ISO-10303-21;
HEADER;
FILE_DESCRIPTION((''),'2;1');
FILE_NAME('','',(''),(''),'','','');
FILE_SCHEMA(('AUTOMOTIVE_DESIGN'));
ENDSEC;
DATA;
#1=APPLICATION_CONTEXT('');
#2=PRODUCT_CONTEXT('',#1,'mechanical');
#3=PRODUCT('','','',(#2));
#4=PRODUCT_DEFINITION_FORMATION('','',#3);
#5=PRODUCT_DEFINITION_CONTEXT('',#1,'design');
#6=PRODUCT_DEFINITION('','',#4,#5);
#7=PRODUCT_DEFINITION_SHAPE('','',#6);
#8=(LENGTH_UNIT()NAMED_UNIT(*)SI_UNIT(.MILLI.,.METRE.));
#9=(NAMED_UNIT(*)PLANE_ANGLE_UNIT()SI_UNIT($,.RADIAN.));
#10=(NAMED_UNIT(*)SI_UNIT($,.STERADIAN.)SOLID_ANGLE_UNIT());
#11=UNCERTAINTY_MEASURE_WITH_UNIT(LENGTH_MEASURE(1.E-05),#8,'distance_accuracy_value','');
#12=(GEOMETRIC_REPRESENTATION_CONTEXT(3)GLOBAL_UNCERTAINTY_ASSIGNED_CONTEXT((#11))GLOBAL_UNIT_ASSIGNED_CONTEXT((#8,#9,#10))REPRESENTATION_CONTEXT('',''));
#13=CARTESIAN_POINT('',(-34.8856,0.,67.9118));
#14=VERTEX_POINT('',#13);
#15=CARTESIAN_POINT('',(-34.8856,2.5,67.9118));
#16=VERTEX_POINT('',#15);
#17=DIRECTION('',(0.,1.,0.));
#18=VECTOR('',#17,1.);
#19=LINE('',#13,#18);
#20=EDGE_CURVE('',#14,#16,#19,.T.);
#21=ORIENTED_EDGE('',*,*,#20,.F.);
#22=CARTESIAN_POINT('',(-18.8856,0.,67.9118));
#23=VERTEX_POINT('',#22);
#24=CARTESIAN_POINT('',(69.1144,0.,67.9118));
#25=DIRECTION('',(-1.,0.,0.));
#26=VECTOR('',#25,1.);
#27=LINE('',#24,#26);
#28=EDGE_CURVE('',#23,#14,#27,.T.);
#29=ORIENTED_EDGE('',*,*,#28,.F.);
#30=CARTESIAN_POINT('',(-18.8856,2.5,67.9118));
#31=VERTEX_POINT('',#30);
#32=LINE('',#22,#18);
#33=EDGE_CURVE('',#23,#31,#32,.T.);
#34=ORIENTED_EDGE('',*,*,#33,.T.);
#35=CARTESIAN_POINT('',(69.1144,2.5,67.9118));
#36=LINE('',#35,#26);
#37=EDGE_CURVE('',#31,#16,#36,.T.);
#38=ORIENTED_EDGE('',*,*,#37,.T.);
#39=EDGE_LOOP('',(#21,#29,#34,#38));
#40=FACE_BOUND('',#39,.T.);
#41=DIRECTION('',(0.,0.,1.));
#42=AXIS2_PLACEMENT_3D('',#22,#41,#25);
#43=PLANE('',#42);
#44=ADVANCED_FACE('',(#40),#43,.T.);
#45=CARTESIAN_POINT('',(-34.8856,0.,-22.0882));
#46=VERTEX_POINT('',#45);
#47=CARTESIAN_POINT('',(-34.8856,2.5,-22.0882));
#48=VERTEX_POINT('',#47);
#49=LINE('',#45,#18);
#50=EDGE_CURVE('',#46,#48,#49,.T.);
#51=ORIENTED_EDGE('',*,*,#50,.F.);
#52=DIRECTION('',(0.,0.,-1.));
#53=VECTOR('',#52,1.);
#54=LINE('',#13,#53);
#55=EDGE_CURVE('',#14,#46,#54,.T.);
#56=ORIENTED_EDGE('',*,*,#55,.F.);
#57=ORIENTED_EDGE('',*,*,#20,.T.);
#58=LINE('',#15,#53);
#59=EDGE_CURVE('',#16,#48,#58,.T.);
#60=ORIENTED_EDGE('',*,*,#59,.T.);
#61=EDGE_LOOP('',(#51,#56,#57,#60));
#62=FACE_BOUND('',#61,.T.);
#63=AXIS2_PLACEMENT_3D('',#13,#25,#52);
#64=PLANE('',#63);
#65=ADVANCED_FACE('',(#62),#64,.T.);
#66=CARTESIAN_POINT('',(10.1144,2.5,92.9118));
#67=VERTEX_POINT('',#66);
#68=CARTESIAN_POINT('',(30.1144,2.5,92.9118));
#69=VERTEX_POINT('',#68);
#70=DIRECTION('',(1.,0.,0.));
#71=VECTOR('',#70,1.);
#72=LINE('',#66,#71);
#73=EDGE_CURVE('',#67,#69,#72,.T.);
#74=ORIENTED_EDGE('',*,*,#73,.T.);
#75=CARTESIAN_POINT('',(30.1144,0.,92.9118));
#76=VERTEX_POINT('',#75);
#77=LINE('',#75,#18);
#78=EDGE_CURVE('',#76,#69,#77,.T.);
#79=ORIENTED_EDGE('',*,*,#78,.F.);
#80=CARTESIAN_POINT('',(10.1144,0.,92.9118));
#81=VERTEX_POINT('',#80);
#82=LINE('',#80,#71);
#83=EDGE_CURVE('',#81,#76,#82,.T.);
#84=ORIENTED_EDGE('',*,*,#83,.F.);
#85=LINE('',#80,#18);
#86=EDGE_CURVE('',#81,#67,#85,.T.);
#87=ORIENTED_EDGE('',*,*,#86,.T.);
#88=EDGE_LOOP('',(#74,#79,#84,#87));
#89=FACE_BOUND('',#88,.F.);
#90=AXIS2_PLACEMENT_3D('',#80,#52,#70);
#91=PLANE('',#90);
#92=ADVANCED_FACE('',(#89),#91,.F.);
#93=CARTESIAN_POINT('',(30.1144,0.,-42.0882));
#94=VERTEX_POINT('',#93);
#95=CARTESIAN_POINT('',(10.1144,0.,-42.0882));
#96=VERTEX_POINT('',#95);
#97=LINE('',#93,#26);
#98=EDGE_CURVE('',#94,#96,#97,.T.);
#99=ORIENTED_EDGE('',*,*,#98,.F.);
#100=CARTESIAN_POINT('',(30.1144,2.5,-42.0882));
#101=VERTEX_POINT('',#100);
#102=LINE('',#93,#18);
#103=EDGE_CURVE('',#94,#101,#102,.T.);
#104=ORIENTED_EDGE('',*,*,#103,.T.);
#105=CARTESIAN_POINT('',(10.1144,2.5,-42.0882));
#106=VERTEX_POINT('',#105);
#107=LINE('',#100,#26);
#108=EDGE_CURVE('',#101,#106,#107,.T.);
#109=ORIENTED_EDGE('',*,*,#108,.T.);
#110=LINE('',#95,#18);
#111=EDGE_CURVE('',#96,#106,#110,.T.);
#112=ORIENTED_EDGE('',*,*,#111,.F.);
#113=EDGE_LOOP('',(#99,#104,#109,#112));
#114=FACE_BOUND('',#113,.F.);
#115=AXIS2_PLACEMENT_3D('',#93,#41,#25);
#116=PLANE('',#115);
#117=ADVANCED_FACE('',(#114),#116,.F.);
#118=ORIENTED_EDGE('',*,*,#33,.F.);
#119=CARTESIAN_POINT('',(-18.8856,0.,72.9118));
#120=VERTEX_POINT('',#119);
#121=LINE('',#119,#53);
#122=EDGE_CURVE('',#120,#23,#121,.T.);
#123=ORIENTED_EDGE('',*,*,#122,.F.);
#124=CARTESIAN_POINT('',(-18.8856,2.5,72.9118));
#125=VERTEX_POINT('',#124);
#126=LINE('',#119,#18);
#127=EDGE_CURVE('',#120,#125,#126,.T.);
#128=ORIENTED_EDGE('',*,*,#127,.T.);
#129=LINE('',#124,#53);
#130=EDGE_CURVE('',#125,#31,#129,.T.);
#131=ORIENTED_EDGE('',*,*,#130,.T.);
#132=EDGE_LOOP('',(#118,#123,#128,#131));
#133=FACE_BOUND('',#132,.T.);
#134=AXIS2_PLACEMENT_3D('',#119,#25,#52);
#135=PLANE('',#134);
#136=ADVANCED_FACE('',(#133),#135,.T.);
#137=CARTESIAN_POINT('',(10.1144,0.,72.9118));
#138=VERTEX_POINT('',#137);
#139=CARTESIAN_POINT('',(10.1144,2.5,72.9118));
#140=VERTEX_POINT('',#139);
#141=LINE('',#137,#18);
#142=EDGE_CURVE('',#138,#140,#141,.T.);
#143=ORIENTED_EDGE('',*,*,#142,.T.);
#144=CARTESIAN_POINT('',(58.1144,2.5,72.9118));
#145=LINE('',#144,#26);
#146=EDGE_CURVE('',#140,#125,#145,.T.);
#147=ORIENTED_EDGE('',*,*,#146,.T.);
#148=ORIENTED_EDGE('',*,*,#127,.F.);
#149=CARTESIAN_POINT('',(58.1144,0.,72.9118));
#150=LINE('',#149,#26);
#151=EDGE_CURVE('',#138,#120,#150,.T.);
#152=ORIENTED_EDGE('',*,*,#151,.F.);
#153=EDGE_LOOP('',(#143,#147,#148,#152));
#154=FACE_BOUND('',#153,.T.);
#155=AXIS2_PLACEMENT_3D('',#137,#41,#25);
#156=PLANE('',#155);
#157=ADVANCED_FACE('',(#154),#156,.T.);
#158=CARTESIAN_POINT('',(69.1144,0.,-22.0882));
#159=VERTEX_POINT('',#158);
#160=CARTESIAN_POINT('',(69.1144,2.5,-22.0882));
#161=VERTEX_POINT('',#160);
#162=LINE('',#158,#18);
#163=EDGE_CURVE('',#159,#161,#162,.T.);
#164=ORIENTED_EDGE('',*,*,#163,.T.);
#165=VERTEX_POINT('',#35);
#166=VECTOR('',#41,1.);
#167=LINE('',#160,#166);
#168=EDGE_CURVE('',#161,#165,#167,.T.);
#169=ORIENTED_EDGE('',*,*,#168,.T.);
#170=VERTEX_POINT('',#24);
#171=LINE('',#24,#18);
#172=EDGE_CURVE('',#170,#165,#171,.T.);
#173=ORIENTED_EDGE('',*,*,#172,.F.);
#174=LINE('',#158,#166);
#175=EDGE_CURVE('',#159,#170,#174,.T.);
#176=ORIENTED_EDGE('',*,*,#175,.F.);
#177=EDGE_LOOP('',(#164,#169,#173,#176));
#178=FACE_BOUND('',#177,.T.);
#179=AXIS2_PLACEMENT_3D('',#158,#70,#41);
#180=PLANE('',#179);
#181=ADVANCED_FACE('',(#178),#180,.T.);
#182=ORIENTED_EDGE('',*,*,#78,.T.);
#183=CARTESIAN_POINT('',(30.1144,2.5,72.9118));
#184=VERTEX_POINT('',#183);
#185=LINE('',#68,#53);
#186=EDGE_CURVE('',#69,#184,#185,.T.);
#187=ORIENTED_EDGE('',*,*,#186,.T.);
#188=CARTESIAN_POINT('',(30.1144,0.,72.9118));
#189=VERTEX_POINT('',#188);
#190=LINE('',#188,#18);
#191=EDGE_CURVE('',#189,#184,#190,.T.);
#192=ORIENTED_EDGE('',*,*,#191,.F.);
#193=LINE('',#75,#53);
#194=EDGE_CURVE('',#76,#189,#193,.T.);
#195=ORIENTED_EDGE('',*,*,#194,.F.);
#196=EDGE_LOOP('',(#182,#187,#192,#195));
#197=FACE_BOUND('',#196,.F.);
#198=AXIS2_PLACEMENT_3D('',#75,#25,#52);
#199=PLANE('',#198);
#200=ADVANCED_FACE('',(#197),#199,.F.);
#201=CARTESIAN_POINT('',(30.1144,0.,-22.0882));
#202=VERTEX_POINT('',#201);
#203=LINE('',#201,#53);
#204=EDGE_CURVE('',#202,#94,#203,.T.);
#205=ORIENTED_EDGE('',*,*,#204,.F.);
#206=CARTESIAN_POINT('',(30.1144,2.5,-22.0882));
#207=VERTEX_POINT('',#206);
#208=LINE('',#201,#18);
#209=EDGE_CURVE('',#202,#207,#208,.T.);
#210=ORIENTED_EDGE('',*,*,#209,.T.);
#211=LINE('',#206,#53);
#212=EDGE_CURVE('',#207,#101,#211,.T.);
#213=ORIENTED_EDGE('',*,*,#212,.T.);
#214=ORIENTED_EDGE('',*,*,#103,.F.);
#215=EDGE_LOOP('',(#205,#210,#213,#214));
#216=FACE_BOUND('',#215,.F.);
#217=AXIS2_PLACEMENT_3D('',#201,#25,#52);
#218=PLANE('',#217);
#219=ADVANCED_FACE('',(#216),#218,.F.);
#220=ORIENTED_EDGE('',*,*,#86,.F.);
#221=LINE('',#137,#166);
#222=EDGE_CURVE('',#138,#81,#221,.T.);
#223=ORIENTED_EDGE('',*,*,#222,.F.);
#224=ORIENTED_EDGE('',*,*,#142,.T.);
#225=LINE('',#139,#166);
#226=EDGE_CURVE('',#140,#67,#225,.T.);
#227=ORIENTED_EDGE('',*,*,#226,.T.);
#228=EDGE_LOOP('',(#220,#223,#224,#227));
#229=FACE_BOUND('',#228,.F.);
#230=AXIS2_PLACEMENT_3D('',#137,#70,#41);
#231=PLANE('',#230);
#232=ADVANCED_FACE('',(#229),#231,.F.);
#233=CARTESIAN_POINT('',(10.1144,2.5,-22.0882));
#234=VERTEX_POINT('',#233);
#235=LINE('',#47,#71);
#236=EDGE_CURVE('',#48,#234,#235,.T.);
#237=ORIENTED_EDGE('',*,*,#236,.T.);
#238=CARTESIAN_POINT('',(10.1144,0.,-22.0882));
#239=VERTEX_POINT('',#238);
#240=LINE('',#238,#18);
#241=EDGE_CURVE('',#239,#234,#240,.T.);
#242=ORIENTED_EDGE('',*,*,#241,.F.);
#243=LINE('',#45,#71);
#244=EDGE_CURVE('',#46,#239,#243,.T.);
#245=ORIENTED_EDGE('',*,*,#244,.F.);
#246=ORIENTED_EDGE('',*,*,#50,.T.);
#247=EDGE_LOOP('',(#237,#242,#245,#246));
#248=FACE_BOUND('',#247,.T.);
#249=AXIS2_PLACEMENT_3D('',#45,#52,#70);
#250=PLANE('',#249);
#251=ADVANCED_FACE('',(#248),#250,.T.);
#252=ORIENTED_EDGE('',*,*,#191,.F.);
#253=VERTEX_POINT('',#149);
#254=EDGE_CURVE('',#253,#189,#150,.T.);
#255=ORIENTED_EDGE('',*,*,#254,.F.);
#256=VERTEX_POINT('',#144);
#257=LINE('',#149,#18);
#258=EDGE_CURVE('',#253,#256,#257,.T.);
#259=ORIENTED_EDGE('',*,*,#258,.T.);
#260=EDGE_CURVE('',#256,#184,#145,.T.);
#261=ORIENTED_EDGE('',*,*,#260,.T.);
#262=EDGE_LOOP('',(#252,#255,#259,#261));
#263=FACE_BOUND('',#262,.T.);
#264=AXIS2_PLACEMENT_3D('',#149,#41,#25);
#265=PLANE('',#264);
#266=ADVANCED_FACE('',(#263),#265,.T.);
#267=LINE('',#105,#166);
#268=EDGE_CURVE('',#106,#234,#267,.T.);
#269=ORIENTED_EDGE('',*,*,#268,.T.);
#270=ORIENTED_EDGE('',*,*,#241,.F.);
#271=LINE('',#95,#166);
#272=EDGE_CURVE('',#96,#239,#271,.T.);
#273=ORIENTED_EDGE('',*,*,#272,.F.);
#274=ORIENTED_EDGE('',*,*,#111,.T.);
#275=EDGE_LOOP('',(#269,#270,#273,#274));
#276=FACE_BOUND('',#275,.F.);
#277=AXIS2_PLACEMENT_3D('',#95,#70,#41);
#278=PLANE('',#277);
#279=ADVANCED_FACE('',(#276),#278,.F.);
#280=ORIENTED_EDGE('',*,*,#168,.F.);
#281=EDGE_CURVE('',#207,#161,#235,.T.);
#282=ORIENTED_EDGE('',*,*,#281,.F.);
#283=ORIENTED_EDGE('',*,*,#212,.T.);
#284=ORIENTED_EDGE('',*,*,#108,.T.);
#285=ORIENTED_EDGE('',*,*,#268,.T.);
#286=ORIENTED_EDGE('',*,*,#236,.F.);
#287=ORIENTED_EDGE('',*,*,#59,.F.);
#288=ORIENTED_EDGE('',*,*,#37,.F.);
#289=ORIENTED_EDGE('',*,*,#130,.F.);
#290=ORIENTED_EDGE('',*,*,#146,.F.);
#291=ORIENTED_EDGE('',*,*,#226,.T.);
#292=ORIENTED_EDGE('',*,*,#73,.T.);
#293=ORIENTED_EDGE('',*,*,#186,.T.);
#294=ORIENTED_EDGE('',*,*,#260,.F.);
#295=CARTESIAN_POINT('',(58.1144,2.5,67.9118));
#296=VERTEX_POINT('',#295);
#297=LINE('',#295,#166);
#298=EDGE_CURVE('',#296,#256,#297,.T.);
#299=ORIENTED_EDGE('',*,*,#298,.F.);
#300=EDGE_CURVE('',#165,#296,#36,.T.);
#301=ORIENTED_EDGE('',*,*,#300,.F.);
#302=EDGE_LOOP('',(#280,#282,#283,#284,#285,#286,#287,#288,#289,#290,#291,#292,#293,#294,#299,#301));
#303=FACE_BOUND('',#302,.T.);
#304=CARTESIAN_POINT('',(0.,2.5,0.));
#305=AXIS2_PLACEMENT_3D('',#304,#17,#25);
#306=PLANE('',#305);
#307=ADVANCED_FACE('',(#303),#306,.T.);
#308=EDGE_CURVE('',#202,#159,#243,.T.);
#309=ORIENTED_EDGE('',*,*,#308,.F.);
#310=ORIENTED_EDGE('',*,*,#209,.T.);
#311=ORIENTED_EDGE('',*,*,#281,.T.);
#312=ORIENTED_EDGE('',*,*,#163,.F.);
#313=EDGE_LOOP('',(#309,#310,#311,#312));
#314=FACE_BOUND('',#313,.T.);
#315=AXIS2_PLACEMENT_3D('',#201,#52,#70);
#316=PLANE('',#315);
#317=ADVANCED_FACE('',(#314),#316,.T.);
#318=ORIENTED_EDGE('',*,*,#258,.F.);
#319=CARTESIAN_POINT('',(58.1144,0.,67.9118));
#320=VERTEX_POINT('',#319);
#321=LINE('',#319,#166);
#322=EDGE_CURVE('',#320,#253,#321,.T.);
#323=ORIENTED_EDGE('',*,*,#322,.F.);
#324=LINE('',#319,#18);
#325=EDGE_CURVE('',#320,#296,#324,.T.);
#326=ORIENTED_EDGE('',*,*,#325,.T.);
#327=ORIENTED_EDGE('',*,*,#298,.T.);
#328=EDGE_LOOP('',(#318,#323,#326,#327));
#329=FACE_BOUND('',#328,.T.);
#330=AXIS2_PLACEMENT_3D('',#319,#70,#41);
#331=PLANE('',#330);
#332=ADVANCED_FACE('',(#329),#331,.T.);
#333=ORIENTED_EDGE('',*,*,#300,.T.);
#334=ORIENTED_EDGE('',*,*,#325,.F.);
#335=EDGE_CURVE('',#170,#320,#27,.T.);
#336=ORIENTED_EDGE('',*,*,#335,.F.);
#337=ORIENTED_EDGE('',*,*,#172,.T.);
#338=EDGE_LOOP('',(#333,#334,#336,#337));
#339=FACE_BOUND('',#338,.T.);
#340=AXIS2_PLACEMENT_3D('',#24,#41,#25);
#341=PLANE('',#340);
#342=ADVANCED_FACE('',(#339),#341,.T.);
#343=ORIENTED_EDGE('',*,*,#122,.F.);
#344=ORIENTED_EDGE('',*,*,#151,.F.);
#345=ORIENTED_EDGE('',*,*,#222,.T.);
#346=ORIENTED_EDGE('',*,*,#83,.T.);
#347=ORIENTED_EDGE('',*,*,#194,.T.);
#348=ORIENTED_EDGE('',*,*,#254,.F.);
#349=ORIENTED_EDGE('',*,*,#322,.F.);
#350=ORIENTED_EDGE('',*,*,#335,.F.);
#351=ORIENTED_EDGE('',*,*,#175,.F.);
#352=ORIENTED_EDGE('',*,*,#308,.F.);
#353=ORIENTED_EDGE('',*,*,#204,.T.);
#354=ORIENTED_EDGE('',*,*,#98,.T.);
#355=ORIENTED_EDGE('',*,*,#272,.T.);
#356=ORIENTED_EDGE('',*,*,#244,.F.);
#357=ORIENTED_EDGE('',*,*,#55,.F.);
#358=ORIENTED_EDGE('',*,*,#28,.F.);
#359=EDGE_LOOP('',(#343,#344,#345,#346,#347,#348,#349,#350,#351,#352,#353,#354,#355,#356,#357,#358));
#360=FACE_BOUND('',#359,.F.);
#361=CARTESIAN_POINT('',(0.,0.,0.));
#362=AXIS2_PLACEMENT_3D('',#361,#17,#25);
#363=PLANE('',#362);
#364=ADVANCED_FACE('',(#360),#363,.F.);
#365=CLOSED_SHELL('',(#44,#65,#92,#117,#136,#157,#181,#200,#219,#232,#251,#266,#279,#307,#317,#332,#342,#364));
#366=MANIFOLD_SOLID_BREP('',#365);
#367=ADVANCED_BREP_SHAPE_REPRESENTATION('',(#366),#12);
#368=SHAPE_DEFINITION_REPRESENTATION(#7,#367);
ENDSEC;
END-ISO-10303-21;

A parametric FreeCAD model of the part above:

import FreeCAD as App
import Part
import Sketcher

doc = App.newDocument("Part")
body = doc.addObject("PartDesign::Body", "Body")

# Sketch on XZ plane
sketch1 = body.newObject("Sketcher::SketchObject", "Sketch")
sketch1.AttachmentSupport = (doc.getObject("XZ_Plane"), [""])
sketch1.MapMode = "FlatFace"
sketch1.addGeometry(Part.LineSegment(App.Vector(58, 68, 0), App.Vector(69, 68, 0)), False)
sketch1.addGeometry(Part.LineSegment(App.Vector(69, 68, 0), App.Vector(69, -22, 0)), False)
sketch1.addGeometry(Part.LineSegment(App.Vector(69, -22, 0), App.Vector(30, -22, 0)), False)
sketch1.addGeometry(Part.LineSegment(App.Vector(30, -22, 0), App.Vector(30, -42, 0)), False)
sketch1.addGeometry(Part.LineSegment(App.Vector(30, -42, 0), App.Vector(10, -42, 0)), False)
sketch1.addGeometry(Part.LineSegment(App.Vector(10, -42, 0), App.Vector(10, -22, 0)), False)
sketch1.addGeometry(Part.LineSegment(App.Vector(10, -22, 0), App.Vector(-35, -22, 0)), False)
sketch1.addGeometry(Part.LineSegment(App.Vector(-35, -22, 0), App.Vector(-35, 68, 0)), False)
sketch1.addGeometry(Part.LineSegment(App.Vector(-35, 68, 0), App.Vector(-19, 68, 0)), False)
sketch1.addGeometry(Part.LineSegment(App.Vector(-19, 68, 0), App.Vector(-19, 73, 0)), False)
sketch1.addGeometry(Part.LineSegment(App.Vector(-19, 73, 0), App.Vector(10, 73, 0)), False)
sketch1.addGeometry(Part.LineSegment(App.Vector(10, 73, 0), App.Vector(10, 93, 0)), False)
sketch1.addGeometry(Part.LineSegment(App.Vector(10, 93, 0), App.Vector(30, 93, 0)), False)
sketch1.addGeometry(Part.LineSegment(App.Vector(30, 93, 0), App.Vector(30, 73, 0)), False)
sketch1.addGeometry(Part.LineSegment(App.Vector(30, 73, 0), App.Vector(58, 73, 0)), False)
sketch1.addGeometry(Part.LineSegment(App.Vector(58, 73, 0), App.Vector(58, 68, 0)), False)
sketch1.addConstraint(Sketcher.Constraint("Coincident", 0, 2, 1, 1))
sketch1.addConstraint(Sketcher.Constraint("Coincident", 1, 2, 2, 1))
sketch1.addConstraint(Sketcher.Constraint("Coincident", 2, 2, 3, 1))
sketch1.addConstraint(Sketcher.Constraint("Coincident", 3, 2, 4, 1))
sketch1.addConstraint(Sketcher.Constraint("Coincident", 4, 2, 5, 1))
sketch1.addConstraint(Sketcher.Constraint("Coincident", 5, 2, 6, 1))
sketch1.addConstraint(Sketcher.Constraint("Coincident", 6, 2, 7, 1))
sketch1.addConstraint(Sketcher.Constraint("Coincident", 7, 2, 8, 1))
sketch1.addConstraint(Sketcher.Constraint("Coincident", 8, 2, 9, 1))
sketch1.addConstraint(Sketcher.Constraint("Coincident", 9, 2, 10, 1))
sketch1.addConstraint(Sketcher.Constraint("Coincident", 10, 2, 11, 1))
sketch1.addConstraint(Sketcher.Constraint("Coincident", 11, 2, 12, 1))
sketch1.addConstraint(Sketcher.Constraint("Coincident", 12, 2, 13, 1))
sketch1.addConstraint(Sketcher.Constraint("Coincident", 13, 2, 14, 1))
sketch1.addConstraint(Sketcher.Constraint("Coincident", 14, 2, 15, 1))
sketch1.addConstraint(Sketcher.Constraint("Coincident", 15, 2, 0, 1))
sketch1.addConstraint(Sketcher.Constraint("Horizontal", 0))
sketch1.addConstraint(Sketcher.Constraint("Vertical", 1))
sketch1.addConstraint(Sketcher.Constraint("Horizontal", 2))
sketch1.addConstraint(Sketcher.Constraint("Vertical", 3))
sketch1.addConstraint(Sketcher.Constraint("Horizontal", 4))
sketch1.addConstraint(Sketcher.Constraint("Vertical", 5))
sketch1.addConstraint(Sketcher.Constraint("Horizontal", 6))
sketch1.addConstraint(Sketcher.Constraint("Vertical", 7))
sketch1.addConstraint(Sketcher.Constraint("Horizontal", 8))
sketch1.addConstraint(Sketcher.Constraint("Vertical", 9))
sketch1.addConstraint(Sketcher.Constraint("Horizontal", 10))
sketch1.addConstraint(Sketcher.Constraint("Vertical", 11))
sketch1.addConstraint(Sketcher.Constraint("Horizontal", 12))
sketch1.addConstraint(Sketcher.Constraint("Vertical", 13))
sketch1.addConstraint(Sketcher.Constraint("Horizontal", 14))
sketch1.addConstraint(Sketcher.Constraint("Vertical", 15))
sketch1.addConstraint(Sketcher.Constraint("Horizontal", 2, 2, 5, 2))
sketch1.addConstraint(Sketcher.Constraint("Horizontal", 0, 2, 7, 2))
sketch1.addConstraint(Sketcher.Constraint("Horizontal", 10, 2, 13, 2))
sketch1.addConstraint(Sketcher.Constraint("Vertical", 5, 2, 10, 2))
sketch1.addConstraint(Sketcher.Constraint("Vertical", 3, 2, 12, 2))
sketch1.addConstraint(Sketcher.Constraint("Equal", 12, 3))
sketch1.addConstraint(Sketcher.Constraint("Equal", 5, 11))
sketch1.addConstraint(Sketcher.Constraint("DistanceX", 0, 1, 0, 2, 11.0))
sketch1.addConstraint(Sketcher.Constraint("DistanceX", 2, 2, 2, 1, 39.0))
sketch1.addConstraint(Sketcher.Constraint("DistanceX", 4, 2, 4, 1, 20.0))
sketch1.addConstraint(Sketcher.Constraint("DistanceX", 8, 1, 8, 2, 16.0))
sketch1.addConstraint(Sketcher.Constraint("DistanceY", 1, 2, 1, 1, 90.0))
sketch1.addConstraint(Sketcher.Constraint("DistanceY", 9, 1, 9, 2, 5.0))
sketch1.addConstraint(Sketcher.Constraint("DistanceX", 6, 2, 1, 2, 104.0))
sketch1.addConstraint(Sketcher.Constraint("DistanceX", -1, 1, 0, 2, 69.1144))
sketch1.addConstraint(Sketcher.Constraint("DistanceY", -1, 1, 0, 2, 67.9118))
pad1 = body.newObject("PartDesign::Pad", "Pad")
pad1.Profile = sketch1
pad1.Length = 2.5
pad1.Reversed = True

doc.recompute()
